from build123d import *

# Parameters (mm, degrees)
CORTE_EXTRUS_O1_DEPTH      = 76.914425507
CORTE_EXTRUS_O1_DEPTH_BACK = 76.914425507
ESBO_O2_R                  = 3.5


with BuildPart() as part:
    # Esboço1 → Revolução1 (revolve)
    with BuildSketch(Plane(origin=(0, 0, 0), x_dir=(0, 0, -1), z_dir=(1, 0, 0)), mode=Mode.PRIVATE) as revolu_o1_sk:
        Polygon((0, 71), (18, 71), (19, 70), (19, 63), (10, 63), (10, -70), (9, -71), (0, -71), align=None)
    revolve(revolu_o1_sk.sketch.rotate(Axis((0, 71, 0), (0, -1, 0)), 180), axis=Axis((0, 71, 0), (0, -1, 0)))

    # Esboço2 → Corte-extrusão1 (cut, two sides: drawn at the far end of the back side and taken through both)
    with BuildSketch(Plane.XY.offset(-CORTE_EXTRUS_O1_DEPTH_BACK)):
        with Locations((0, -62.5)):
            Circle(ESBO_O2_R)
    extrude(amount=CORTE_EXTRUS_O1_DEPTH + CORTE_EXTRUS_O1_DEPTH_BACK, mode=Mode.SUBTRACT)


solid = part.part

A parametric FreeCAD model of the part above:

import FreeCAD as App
import Part
import Sketcher


def add_polygon(sketch, points):
    """Adds a closed chain of lines whose ends are joined by coincident constraints."""
    first, n = sketch.GeometryCount, len(points)
    for a, b in zip(points, points[1:] + points[:1]):
        sketch.addGeometry(Part.LineSegment(App.Vector(*a, 0), App.Vector(*b, 0)), False)
    for i in range(n):
        sketch.addConstraint(Sketcher.Constraint("Coincident", first + i, 2, first + (i + 1) % n, 1))

doc = App.newDocument("Part")
body = doc.addObject("PartDesign::Body", "Body")

# Sketch on YZ plane
sketch1 = body.newObject("Sketcher::SketchObject", "Sketch")
sketch1.AttachmentSupport = (doc.getObject("YZ_Plane"), [""])
sketch1.MapMode = "FlatFace"
add_polygon(sketch1, [(71, -18), (71, 0), (-71, 0), (-71, -9), (-70, -10), (63, -10), (63, -19), (70, -19)])  # lines 0-7
sketch1.addConstraint(Sketcher.Constraint("Vertical", 0))
sketch1.addConstraint(Sketcher.Constraint("Horizontal", 1))
sketch1.addConstraint(Sketcher.Constraint("Vertical", 2))
sketch1.addConstraint(Sketcher.Constraint("Horizontal", 4))
sketch1.addConstraint(Sketcher.Constraint("Vertical", 5))
sketch1.addConstraint(Sketcher.Constraint("Horizontal", 6))
sketch1.addConstraint(Sketcher.Constraint("Symmetric", 0, 2, 1, 2, -1, 1))
sketch1.addConstraint(Sketcher.Constraint("Perpendicular", 3, 7))
sketch1.addConstraint(Sketcher.Constraint("Equal", 2, 5))
sketch1.addConstraint(Sketcher.Constraint("Equal", 3, 7))
sketch1.addConstraint(Sketcher.Constraint("DistanceX", 1, 2, 1, 1, 142.0))
sketch1.addConstraint(Sketcher.Constraint("DistanceX", 4, 1, 4, 2, 133.0))
sketch1.addConstraint(Sketcher.Constraint("DistanceX", 6, 1, 6, 2, 7.0))
sketch1.addConstraint(Sketcher.Constraint("DistanceY", 0, 1, 0, 2, 18.0))
sketch1.addConstraint(Sketcher.Constraint("DistanceY", 2, 2, 2, 1, 9.0))
revolution = body.newObject("PartDesign::Revolution", "Revolution")
revolution.Profile = sketch1
revolution.ReferenceAxis = (sketch1, ["H_Axis"])
revolution.Angle = 360

# Sketch on XY plane
sketch2 = body.newObject("Sketcher::SketchObject", "Sketch001")
sketch2.AttachmentSupport = (doc.getObject("XY_Plane"), [""])
sketch2.MapMode = "FlatFace"
sketch2.addGeometry(Part.Circle(App.Vector(0, -62.5, 0), App.Vector(0, 0, 1), 3.5), False)
sketch2.addConstraint(Sketcher.Constraint("PointOnObject", 0, 3, -2))
sketch2.addConstraint(Sketcher.Constraint("Diameter", 0, 7.0))
sketch2.addConstraint(Sketcher.Constraint("DistanceY", 0, 3, -1, 1, 62.5))
pocket1 = body.newObject("PartDesign::Pocket", "Pocket")
pocket1.Profile = sketch2
pocket1.Type = "ThroughAll"
pocket1.Midplane = True

doc.recompute()
